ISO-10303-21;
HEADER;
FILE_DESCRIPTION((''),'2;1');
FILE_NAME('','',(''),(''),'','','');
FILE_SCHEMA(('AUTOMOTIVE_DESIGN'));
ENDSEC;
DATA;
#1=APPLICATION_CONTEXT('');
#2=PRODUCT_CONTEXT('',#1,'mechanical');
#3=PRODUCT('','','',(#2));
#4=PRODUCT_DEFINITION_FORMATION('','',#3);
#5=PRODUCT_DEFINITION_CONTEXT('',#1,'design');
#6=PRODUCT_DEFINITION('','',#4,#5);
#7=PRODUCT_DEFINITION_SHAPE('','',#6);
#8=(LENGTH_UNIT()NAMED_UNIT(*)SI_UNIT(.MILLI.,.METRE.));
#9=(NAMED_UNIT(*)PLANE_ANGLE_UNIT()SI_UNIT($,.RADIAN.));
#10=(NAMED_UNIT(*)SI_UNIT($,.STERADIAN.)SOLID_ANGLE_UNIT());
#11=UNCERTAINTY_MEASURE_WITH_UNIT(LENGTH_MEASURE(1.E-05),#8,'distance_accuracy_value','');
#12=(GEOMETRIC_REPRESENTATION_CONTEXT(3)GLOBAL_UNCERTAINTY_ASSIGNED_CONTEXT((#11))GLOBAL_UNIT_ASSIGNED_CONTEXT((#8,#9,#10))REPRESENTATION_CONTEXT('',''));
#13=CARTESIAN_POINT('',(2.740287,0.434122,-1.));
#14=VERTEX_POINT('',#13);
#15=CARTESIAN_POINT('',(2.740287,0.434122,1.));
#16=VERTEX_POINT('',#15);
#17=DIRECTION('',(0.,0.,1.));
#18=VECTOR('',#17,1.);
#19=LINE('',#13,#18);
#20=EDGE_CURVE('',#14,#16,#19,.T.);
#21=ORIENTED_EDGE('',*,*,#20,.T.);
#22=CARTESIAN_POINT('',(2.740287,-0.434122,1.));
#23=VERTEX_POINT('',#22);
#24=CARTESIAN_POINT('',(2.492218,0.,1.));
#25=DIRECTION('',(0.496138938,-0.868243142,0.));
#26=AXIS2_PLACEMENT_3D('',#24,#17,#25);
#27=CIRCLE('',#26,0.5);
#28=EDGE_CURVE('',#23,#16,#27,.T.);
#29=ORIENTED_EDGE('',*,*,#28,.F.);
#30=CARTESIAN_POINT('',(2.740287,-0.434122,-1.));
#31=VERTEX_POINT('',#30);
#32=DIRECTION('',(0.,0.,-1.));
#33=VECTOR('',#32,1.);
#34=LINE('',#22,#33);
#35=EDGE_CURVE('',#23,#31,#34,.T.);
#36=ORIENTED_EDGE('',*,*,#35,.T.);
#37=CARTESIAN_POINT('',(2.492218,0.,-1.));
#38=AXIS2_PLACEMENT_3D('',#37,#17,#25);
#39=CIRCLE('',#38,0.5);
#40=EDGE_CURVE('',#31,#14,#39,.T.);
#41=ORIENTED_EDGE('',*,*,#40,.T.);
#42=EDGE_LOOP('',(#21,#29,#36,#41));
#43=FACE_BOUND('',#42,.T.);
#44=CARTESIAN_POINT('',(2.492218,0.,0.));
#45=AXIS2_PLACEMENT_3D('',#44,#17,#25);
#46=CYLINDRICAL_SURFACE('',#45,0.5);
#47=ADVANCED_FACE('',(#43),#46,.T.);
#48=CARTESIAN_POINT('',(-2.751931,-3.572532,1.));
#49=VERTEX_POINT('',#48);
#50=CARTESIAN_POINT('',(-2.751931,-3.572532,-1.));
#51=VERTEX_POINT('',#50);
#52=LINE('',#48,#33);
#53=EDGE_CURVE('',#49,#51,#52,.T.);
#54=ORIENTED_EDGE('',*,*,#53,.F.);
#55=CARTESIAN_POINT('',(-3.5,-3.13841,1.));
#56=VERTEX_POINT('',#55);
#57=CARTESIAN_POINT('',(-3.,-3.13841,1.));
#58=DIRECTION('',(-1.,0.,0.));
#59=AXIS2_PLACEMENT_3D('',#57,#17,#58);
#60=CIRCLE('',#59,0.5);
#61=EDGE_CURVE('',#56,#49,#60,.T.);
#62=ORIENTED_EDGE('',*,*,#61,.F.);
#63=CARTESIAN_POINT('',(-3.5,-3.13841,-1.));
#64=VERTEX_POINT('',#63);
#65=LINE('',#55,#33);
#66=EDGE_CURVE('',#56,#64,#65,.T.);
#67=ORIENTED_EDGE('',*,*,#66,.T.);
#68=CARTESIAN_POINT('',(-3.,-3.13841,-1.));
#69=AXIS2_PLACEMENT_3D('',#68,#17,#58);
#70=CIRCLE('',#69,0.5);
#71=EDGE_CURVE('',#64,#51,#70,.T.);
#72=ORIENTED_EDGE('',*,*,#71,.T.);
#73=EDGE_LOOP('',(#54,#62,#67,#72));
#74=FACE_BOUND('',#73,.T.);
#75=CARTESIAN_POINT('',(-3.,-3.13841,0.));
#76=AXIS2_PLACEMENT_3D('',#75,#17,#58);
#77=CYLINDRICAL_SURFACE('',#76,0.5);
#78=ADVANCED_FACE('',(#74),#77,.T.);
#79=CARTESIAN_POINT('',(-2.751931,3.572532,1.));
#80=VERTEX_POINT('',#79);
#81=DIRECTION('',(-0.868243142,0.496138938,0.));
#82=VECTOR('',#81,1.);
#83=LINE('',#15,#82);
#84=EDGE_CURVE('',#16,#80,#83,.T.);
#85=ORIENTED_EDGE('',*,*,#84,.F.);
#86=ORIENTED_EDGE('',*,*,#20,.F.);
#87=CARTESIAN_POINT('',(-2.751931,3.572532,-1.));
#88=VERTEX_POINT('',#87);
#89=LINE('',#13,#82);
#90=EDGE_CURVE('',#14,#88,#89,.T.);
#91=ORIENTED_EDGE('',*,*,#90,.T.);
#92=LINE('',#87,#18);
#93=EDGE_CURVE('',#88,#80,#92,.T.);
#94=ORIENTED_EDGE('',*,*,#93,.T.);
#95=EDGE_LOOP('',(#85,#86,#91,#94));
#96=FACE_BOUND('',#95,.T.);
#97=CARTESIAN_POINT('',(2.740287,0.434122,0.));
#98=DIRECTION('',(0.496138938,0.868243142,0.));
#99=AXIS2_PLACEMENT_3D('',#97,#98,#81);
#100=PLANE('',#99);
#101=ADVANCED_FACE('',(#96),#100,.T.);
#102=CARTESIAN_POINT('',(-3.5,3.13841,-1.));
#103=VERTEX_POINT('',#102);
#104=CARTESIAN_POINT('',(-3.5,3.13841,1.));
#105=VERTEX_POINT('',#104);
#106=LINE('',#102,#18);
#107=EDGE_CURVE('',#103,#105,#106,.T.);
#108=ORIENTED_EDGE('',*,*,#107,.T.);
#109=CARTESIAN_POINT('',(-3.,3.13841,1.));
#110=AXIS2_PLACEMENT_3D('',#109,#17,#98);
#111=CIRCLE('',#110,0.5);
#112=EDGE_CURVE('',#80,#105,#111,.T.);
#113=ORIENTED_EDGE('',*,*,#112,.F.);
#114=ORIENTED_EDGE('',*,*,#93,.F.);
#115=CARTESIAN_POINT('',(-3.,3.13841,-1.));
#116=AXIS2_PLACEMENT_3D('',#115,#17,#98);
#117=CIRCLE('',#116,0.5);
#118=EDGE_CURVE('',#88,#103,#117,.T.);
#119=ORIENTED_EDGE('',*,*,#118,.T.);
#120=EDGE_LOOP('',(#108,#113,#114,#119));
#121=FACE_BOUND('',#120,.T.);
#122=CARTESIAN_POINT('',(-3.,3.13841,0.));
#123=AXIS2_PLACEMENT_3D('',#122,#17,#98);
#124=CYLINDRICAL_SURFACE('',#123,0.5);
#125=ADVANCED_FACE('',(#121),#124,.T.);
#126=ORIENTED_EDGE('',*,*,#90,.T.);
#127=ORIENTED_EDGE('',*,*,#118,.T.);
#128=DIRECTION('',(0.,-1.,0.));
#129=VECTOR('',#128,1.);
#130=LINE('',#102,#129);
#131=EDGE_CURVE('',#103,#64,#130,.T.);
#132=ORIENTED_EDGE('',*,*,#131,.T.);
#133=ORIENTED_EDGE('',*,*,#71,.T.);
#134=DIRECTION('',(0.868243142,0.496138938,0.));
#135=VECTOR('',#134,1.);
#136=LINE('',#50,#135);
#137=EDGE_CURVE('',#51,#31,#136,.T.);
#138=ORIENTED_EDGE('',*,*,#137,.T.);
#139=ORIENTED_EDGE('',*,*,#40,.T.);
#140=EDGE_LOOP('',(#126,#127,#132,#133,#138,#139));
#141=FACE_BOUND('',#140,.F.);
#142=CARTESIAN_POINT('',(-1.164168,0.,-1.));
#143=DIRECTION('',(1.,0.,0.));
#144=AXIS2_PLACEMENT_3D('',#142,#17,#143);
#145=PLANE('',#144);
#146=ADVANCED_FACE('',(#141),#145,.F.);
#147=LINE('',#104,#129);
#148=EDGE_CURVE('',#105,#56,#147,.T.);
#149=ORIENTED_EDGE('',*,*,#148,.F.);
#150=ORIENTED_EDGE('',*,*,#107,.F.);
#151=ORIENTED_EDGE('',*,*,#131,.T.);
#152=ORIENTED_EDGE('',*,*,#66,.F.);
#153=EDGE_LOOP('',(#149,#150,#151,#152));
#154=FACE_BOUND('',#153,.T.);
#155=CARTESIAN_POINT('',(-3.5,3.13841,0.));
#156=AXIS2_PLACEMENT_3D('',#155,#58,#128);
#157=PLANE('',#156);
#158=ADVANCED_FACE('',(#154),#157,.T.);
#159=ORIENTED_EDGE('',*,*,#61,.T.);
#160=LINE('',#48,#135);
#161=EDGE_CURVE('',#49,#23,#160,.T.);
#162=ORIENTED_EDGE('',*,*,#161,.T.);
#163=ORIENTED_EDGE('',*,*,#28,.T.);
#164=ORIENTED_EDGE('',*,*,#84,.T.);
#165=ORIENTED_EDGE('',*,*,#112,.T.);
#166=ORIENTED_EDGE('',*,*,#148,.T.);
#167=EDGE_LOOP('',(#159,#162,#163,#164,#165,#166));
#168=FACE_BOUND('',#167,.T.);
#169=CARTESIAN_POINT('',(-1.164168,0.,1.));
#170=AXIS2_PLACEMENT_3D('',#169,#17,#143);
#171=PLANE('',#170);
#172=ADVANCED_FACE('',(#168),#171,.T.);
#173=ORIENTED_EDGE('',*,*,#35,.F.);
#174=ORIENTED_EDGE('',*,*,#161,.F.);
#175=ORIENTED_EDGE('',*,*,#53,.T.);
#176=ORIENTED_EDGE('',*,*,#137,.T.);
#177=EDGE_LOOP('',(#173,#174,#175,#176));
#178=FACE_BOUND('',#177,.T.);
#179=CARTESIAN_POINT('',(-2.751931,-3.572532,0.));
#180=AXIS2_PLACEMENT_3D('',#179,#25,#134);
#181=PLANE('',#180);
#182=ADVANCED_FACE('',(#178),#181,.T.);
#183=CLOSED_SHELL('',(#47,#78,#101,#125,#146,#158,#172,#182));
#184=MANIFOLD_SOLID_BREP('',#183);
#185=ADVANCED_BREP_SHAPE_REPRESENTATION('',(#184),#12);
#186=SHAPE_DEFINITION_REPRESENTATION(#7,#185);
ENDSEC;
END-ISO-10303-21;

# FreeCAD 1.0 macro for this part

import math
import FreeCAD as App
import Part
import Sketcher
Q = App.Units.Quantity

doc = App.newDocument("Part")
body = doc.addObject("PartDesign::Body", "Body")

sketch1 = body.newObject("Sketcher::SketchObject", "Sketch")
sketch1.AttachmentSupport = (doc.getObject("XY_Plane"), [""])
sketch1.MapMode = "FlatFace"
sketch1.addGeometry([
    Part.ArcOfCircle(Part.Circle(App.Vector(2.492218, 0, 0), App.Vector(0, 0, 1), 0.5), math.radians(-60.255119), math.radians(60.255119)),
    Part.LineSegment(App.Vector(2.740287, 0.434122, 0), App.Vector(-2.751931, 3.572532, 0)),
    Part.ArcOfCircle(Part.Circle(App.Vector(-3, 3.13841, 0), App.Vector(0, 0, 1), 0.5), math.radians(60.255119), math.radians(180)),
    Part.LineSegment(App.Vector(-3.5, 3.13841, 0), App.Vector(-3.5, -3.13841, 0)),
    Part.ArcOfCircle(Part.Circle(App.Vector(-3, -3.13841, 0), App.Vector(0, 0, 1), 0.5), math.radians(180), math.radians(299.744881)),
    Part.LineSegment(App.Vector(-2.751931, -3.572532, 0), App.Vector(2.740287, -0.434122, 0)),
], False)
sketch1.addConstraint([
    Sketcher.Constraint("Coincident", 0, 2, 1, 1),
    Sketcher.Constraint("Coincident", 1, 2, 2, 1),
    Sketcher.Constraint("Coincident", 2, 2, 3, 1),
    Sketcher.Constraint("Coincident", 3, 2, 4, 1),
    Sketcher.Constraint("Coincident", 4, 2, 5, 1),
    Sketcher.Constraint("Coincident", 5, 2, 0, 1),
    Sketcher.Constraint("Vertical", 3),
    Sketcher.Constraint("PointOnObject", 0, 3, -1),
    Sketcher.Constraint("Radius", 0, Q("0.5 mm")),
    Sketcher.Constraint("Radius", 2, Q("0.5 mm")),
    Sketcher.Constraint("Radius", 4, Q("0.5 mm")),
    Sketcher.Constraint("DistanceX", 2, 3, -1, 1, Q("3 mm")),
    Sketcher.Constraint("DistanceY", 3, 2, 3, 1, Q("6.27682 mm")),
    Sketcher.Constraint("DistanceY", -1, 1, 2, 3, Q("3.13841 mm")),
    Sketcher.Constraint("DistanceY", 4, 3, -1, 1, Q("3.13841 mm")),
    Sketcher.Constraint("DistanceY", -1, 1, 0, 2, Q("0.434122 mm")),
    Sketcher.Constraint("DistanceX", 1, 2, -1, 1, Q("2.751931 mm")),
    Sketcher.Constraint("DistanceY", -1, 1, 2, 2, Q("3.13841 mm")),
    Sketcher.Constraint("DistanceX", 4, 2, -1, 1, Q("2.751931 mm")),
    Sketcher.Constraint("DistanceY", 5, 2, -1, 1, Q("0.434122 mm")),
    Sketcher.Constraint("DistanceX", 1, 2, 0, 3, Q("5.244148 mm")),
])
pad1 = body.newObject("PartDesign::Pad", "Pad")
pad1.Profile = sketch1
pad1.Length = 2
pad1.Midplane = True

doc.recompute()
